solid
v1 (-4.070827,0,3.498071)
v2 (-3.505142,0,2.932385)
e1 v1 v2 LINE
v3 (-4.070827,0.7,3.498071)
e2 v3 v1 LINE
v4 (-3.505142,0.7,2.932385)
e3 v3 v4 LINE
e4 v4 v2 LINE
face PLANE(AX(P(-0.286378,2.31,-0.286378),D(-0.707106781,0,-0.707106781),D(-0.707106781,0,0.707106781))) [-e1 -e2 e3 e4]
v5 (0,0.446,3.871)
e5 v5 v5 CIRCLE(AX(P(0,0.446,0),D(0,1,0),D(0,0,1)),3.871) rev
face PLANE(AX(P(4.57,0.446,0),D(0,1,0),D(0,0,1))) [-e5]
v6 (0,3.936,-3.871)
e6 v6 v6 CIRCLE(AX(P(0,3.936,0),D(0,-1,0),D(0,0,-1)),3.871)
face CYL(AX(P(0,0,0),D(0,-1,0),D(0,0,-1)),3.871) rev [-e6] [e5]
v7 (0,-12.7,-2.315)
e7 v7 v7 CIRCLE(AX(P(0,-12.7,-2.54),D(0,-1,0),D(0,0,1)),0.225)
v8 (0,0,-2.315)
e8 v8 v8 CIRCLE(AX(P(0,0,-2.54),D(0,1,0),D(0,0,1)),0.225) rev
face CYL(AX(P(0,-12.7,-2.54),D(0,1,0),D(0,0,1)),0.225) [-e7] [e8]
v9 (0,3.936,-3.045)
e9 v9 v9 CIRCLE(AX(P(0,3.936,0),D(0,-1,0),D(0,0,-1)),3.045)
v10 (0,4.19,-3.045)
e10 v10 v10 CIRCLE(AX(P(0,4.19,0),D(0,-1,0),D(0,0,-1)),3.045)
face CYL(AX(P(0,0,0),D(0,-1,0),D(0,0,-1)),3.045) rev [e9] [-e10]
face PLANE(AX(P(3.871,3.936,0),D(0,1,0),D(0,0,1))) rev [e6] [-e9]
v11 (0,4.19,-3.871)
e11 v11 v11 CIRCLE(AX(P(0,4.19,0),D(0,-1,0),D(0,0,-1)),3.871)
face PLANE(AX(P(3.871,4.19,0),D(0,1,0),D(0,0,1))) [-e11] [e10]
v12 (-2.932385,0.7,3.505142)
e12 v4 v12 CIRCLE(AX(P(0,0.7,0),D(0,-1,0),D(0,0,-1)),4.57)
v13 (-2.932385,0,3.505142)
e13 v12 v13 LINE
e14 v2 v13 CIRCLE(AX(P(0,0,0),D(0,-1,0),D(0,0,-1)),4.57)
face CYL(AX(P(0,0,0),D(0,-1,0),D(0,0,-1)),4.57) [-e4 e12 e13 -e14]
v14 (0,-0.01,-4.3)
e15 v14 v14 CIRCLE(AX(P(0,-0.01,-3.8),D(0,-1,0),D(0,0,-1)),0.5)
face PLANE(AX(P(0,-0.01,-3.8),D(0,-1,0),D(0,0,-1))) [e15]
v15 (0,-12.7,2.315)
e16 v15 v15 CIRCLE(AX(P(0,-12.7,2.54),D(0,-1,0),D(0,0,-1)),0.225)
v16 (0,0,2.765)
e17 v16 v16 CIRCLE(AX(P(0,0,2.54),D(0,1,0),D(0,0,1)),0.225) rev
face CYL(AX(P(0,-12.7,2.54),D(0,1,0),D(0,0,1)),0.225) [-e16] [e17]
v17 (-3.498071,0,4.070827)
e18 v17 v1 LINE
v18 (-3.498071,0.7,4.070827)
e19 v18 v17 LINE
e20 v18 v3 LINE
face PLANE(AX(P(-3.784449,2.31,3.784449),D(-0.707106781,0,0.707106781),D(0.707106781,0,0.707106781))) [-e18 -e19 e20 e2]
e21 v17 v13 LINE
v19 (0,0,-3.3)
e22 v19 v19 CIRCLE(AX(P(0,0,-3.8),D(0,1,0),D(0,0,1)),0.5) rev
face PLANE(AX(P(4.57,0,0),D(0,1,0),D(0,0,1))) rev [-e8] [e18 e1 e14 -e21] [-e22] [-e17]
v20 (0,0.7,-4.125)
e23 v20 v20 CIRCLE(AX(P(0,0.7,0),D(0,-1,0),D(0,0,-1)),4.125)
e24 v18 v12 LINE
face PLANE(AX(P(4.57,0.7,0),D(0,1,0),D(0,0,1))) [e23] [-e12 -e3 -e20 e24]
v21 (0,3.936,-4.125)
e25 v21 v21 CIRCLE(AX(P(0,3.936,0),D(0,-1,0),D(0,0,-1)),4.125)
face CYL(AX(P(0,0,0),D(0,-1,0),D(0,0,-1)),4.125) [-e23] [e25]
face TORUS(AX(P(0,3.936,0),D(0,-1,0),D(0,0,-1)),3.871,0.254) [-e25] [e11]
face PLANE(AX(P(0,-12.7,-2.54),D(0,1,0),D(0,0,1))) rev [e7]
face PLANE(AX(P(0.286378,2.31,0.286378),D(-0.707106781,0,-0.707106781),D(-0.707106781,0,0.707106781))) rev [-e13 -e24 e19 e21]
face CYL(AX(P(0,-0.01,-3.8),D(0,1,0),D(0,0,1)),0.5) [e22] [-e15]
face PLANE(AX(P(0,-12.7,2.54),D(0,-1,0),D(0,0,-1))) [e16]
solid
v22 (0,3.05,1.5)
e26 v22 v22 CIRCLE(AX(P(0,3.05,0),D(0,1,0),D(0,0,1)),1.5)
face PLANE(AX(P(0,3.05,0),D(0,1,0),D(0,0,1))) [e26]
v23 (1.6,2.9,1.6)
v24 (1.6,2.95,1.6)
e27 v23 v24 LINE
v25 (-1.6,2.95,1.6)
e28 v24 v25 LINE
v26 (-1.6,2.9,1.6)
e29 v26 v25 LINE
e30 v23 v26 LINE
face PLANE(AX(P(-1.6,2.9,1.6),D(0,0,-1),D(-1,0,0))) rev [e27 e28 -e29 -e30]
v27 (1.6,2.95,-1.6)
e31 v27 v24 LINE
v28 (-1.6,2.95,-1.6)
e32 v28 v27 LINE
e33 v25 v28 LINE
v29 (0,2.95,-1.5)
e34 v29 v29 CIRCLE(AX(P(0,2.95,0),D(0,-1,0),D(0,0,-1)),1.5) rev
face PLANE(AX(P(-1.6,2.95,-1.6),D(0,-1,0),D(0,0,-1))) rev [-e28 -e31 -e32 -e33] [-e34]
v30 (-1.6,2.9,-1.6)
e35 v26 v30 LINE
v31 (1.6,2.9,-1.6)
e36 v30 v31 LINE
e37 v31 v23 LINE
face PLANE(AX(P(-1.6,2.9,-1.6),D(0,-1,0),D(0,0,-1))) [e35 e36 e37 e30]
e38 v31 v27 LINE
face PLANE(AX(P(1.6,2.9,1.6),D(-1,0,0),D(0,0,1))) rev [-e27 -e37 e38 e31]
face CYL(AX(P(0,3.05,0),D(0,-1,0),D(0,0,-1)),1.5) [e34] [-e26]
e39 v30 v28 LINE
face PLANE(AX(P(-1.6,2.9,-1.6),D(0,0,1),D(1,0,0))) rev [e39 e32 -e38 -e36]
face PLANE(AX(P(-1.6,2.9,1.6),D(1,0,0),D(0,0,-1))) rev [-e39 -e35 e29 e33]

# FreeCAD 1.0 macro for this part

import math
import FreeCAD as App
import Part
import Sketcher
Q = App.Units.Quantity


def add_polygon(sketch, points):
    """Adds a closed chain of lines whose ends are joined by coincident constraints."""
    first, n = sketch.GeometryCount, len(points)
    for a, b in zip(points, points[1:] + points[:1]):
        sketch.addGeometry(Part.LineSegment(App.Vector(*a, 0), App.Vector(*b, 0)), False)
    for i in range(n):
        sketch.addConstraint(Sketcher.Constraint("Coincident", first + i, 2, first + (i + 1) % n, 1))

doc = App.newDocument("Part")
body = doc.addObject("PartDesign::Body", "Body")

# Sketch on XY plane
sketch1 = body.newObject("Sketcher::SketchObject", "Sketch")
sketch1.AttachmentSupport = (doc.getObject("XY_Plane"), [""])
sketch1.MapMode = "FlatFace"
sketch1.addGeometry([
    Part.LineSegment(App.Vector(4.57, 0, 0), App.Vector(4.57, 0.7, 0)),  # 0
    Part.LineSegment(App.Vector(4.57, 0.7, 0), App.Vector(4.125, 0.7, 0)),  # 1
    Part.LineSegment(App.Vector(4.125, 0.7, 0), App.Vector(4.125, 3.936, 0)),  # 2
    Part.ArcOfCircle(Part.Circle(App.Vector(3.871, 3.936, 0), App.Vector(0, 0, 1), 0.254), math.radians(0), math.radians(90)),  # 3
    Part.LineSegment(App.Vector(3.871, 4.19, 0), App.Vector(3.045, 4.19, 0)),  # 4
    Part.LineSegment(App.Vector(3.045, 4.19, 0), App.Vector(3.045, 3.936, 0)),  # 5
    Part.LineSegment(App.Vector(3.045, 3.936, 0), App.Vector(3.871, 3.936, 0)),  # 6
    Part.LineSegment(App.Vector(3.871, 3.936, 0), App.Vector(3.871, 0.446, 0)),  # 7
    Part.LineSegment(App.Vector(3.871, 0.446, 0), App.Vector(4.316, 0.446, 0)),  # 8
    Part.LineSegment(App.Vector(4.316, 0.446, 0), App.Vector(4.316, 0, 0)),  # 9
    Part.LineSegment(App.Vector(4.316, 0, 0), App.Vector(4.57, 0, 0)),  # 10
], False)
sketch1.addConstraint([
    Sketcher.Constraint("Coincident", 0, 2, 1, 1),
    Sketcher.Constraint("Coincident", 1, 2, 2, 1),
    Sketcher.Constraint("Tangent", 2, 2, 3, 1),
    Sketcher.Constraint("Tangent", 3, 2, 4, 1),
    Sketcher.Constraint("Coincident", 4, 2, 5, 1),
    Sketcher.Constraint("Coincident", 5, 2, 6, 1),
    Sketcher.Constraint("Coincident", 6, 2, 7, 1),
    Sketcher.Constraint("Coincident", 7, 2, 8, 1),
    Sketcher.Constraint("Coincident", 8, 2, 9, 1),
    Sketcher.Constraint("Coincident", 9, 2, 10, 1),
    Sketcher.Constraint("Coincident", 10, 2, 0, 1),
    Sketcher.Constraint("Vertical", 0),
    Sketcher.Constraint("Horizontal", 1),
    Sketcher.Constraint("Vertical", 2),
    Sketcher.Constraint("Horizontal", 4),
    Sketcher.Constraint("Vertical", 5),
    Sketcher.Constraint("Horizontal", 6),
    Sketcher.Constraint("Vertical", 7),
    Sketcher.Constraint("Horizontal", 8),
    Sketcher.Constraint("Vertical", 9),
    Sketcher.Constraint("Horizontal", 10),
    Sketcher.Constraint("Coincident", 6, 2, 3, 3),
    Sketcher.Constraint("PointOnObject", 9, 2, -1),
    Sketcher.Constraint("Equal", 1, 8),
    Sketcher.Constraint("DistanceY", 0, 1, 0, 2, Q("0.7 mm")),
    Sketcher.Constraint("Radius", 3, Q("0.254 mm")),
    Sketcher.Constraint("DistanceY", 7, 2, 7, 1, Q("3.49 mm")),
    Sketcher.Constraint("DistanceX", 1, 2, 1, 1, Q("0.445 mm")),
    Sketcher.Constraint("DistanceX", 4, 2, 4, 1, Q("0.826 mm")),
    Sketcher.Constraint("DistanceY", 2, 1, 2, 2, Q("3.236 mm")),
    Sketcher.Constraint("DistanceX", -1, 1, 0, 2, Q("4.57 mm")),
])
revolution = body.newObject("PartDesign::Revolution", "Revolution")
revolution.Profile = sketch1
revolution.ReferenceAxis = (sketch1, ["V_Axis"])
revolution.Angle = 360

# Sketch on XZ plane
sketch2 = body.newObject("Sketcher::SketchObject", "Sketch001")
sketch2.AttachmentSupport = (doc.getObject("XZ_Plane"), [""])
sketch2.MapMode = "FlatFace"
sketch2.addGeometry(Part.Circle(App.Vector(0, 0, 0), App.Vector(0, 0, 1), 4.57), False)
sketch2.addConstraint([
    Sketcher.Constraint("Coincident", 0, 3, -1, 1),
    Sketcher.Constraint("Diameter", 0, Q("9.14 mm")),
])
pad1 = body.newObject("PartDesign::Pad", "Pad")
pad1.Profile = sketch2
pad1.Length = 0.446
pad1.Reversed = True

# Sketch on XZ plane
sketch3 = body.newObject("Sketcher::SketchObject", "Sketch002")
sketch3.AttachmentSupport = (doc.getObject("XZ_Plane"), [""])
sketch3.MapMode = "FlatFace"
sketch3.addGeometry([
    Part.LineSegment(App.Vector(-3.498071, 4.070827, 0), App.Vector(-3.784449, 3.784449, 0)),  # 0
    Part.LineSegment(App.Vector(-3.784449, 3.784449, 0), App.Vector(-4.070827, 3.498071, 0)),  # 1
    Part.LineSegment(App.Vector(-4.070827, 3.498071, 0), App.Vector(-3.505142, 2.932385, 0)),  # 2
    Part.ArcOfCircle(Part.Circle(App.Vector(0, 0, 0), App.Vector(0, 0, 1), 4.57), math.radians(129.915695), math.radians(140.084305)),  # 3
    Part.LineSegment(App.Vector(-2.932385, 3.505142, 0), App.Vector(-3.498071, 4.070827, 0)),  # 4
], False)
sketch3.addConstraint([
    Sketcher.Constraint("Coincident", 0, 2, 1, 1),
    Sketcher.Constraint("Coincident", 1, 2, 2, 1),
    Sketcher.Constraint("Coincident", 2, 2, 3, 2),
    Sketcher.Constraint("Coincident", 3, 1, 4, 1),
    Sketcher.Constraint("Coincident", 4, 2, 0, 1),
    Sketcher.Constraint("Coincident", 3, 3, -1, 1),
    Sketcher.Constraint("Parallel", 0, 1),
    Sketcher.Constraint("Perpendicular", 1, 2),
    Sketcher.Constraint("Parallel", 2, 4),
    Sketcher.Constraint("Equal", 0, 1),
    Sketcher.Constraint("Equal", 2, 4),
    Sketcher.Constraint("Angle", 0, Q("-135 deg")),
    Sketcher.Constraint("Radius", 3, Q("4.57 mm")),
    Sketcher.Constraint("Distance", 2, Q("0.8 mm")),
    Sketcher.Constraint("Distance", 0, Q("0.405 mm")),
])
pad2 = body.newObject("PartDesign::Pad", "Pad001")
pad2.Profile = sketch3
pad2.Length = 0.7
pad2.Reversed = True

# Sketch on XZ plane
sketch4 = body.newObject("Sketcher::SketchObject", "Sketch003")
sketch4.AttachmentSupport = (doc.getObject("XZ_Plane"), [""])
sketch4.MapMode = "FlatFace"
sketch4.addGeometry([
    Part.Circle(App.Vector(0, -2.54, 0), App.Vector(0, 0, 1), 0.225),
    Part.Circle(App.Vector(0, 2.54, 0), App.Vector(0, 0, 1), 0.225),
], False)
sketch4.addConstraint([
    Sketcher.Constraint("Equal", 0, 1),
    Sketcher.Constraint("Symmetric", 0, 3, 1, 3, -1, 1),
    Sketcher.Constraint("PointOnObject", 0, 3, -2),
    Sketcher.Constraint("Diameter", 0, Q("0.45 mm")),
    Sketcher.Constraint("DistanceY", 0, 3, -1, 1, Q("2.54 mm")),
])
pad3 = body.newObject("PartDesign::Pad", "Pad002")
pad3.Profile = sketch4
pad3.Length = 12.7

# Sketch on XZ plane
sketch5 = body.newObject("Sketcher::SketchObject", "Sketch004")
sketch5.AttachmentSupport = (doc.getObject("XZ_Plane"), [""])
sketch5.MapMode = "FlatFace"
sketch5.addGeometry(Part.Circle(App.Vector(0, -3.8, 0), App.Vector(0, 0, 1), 0.5), False)
sketch5.addConstraint([
    Sketcher.Constraint("PointOnObject", 0, 3, -2),
    Sketcher.Constraint("Diameter", 0, Q("1 mm")),
    Sketcher.Constraint("DistanceY", 0, 3, -1, 1, Q("3.8 mm")),
])
pad4 = body.newObject("PartDesign::Pad", "Pad003")
pad4.Profile = sketch5
pad4.Length = 0.01
body2 = doc.addObject("PartDesign::Body", "Body001")

# Sketch on XZ plane
sketch6 = body2.newObject("Sketcher::SketchObject", "Sketch005")
sketch6.AttachmentSupport = (doc.getObject("XZ_Plane001"), [""])
sketch6.MapMode = "FlatFace"
sketch6.AttachmentOffset = App.Placement(App.Vector(0, 0, -2.95), App.Rotation())
add_polygon(sketch6, [(-1.6, 1.6), (-1.6, -1.6), (1.6, -1.6), (1.6, 1.6)])  # lines 0-3
sketch6.addConstraint([
    Sketcher.Constraint("Vertical", 0),
    Sketcher.Constraint("Horizontal", 1),
    Sketcher.Constraint("Vertical", 2),
    Sketcher.Constraint("Horizontal", 3),
    Sketcher.Constraint("Symmetric", 0, 2, 2, 2, -1, 1),
    Sketcher.Constraint("Equal", 3, 0),
    Sketcher.Constraint("DistanceX", 1, 1, 1, 2, Q("3.2 mm")),
])
pad5 = body2.newObject("PartDesign::Pad", "Pad004")
pad5.Profile = sketch6
pad5.Length = 0.05

# Sketch on XZ plane
sketch7 = body2.newObject("Sketcher::SketchObject", "Sketch006")
sketch7.AttachmentSupport = (doc.getObject("XZ_Plane001"), [""])
sketch7.MapMode = "FlatFace"
sketch7.AttachmentOffset = App.Placement(App.Vector(0, 0, -2.95), App.Rotation())
sketch7.addGeometry(Part.Circle(App.Vector(0, 0, 0), App.Vector(0, 0, 1), 1.5), False)
sketch7.addConstraint([
    Sketcher.Constraint("Coincident", 0, 3, -1, 1),
    Sketcher.Constraint("Diameter", 0, Q("3 mm")),
])
pad6 = body2.newObject("PartDesign::Pad", "Pad005")
pad6.Profile = sketch7
pad6.Length = 0.1
pad6.Reversed = True

doc.recompute()
